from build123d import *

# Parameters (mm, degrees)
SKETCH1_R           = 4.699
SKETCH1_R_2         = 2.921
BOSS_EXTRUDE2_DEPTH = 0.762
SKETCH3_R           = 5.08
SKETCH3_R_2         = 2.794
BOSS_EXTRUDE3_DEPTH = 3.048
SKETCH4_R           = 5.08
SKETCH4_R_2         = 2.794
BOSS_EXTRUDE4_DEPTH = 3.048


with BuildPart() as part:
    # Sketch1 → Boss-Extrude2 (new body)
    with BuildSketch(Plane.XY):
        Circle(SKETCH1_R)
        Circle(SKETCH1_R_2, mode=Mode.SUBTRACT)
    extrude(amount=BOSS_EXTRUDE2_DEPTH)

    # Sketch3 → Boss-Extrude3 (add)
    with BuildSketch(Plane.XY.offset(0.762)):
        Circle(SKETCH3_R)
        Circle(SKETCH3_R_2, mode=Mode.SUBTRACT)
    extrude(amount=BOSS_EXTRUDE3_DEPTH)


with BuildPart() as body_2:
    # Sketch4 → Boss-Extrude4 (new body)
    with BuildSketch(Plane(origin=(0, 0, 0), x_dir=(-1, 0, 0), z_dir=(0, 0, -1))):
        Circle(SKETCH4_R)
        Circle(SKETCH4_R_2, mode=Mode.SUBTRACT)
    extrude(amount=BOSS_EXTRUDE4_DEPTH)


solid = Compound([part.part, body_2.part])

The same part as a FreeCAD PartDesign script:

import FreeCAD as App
import Part
import Sketcher

V = App.Vector
Q = App.Units.Quantity

doc = App.newDocument("Part")
params = doc.addObject("Spreadsheet::Sheet", "Params")
for row, (alias, value) in enumerate([
    ("sketch1_diameter", "0.37 in"),
    ("sketch1_diameter2", "0.23 in"),
    ("pad1_length", "0.03 in"),
    ("sketch2_diameter", "0.4 in"),
    ("sketch2_diameter2", "0.22 in"),
    ("pad2_length", "0.12 in"),
    ("sketch3_diameter", "0.4 in"),
    ("sketch3_diameter2", "0.22 in"),
    ("pad3_length", "0.12 in"),
], start=1):
    params.set(f"A{row}", alias)
    params.set(f"B{row}", "=" + value)
    params.setAlias(f"B{row}", alias)

body = doc.addObject("PartDesign::Body", "Body")

# Sketch on XY plane
sketch1 = body.newObject("Sketcher::SketchObject", "Sketch")
sketch1.AttachmentSupport = (doc.getObject("XY_Plane"), [""])
sketch1.MapMode = "FlatFace"
sketch1.addGeometry(Part.Circle(V(0, 0, 0), V(0, 0, 1), 4.7), False)
sketch1.addGeometry(Part.Circle(V(0, 0, 0), V(0, 0, 1), 2.9), False)
sketch1.addConstraint(Sketcher.Constraint("Coincident", 0, 3, -1, 1))
sketch1.addConstraint(Sketcher.Constraint("Coincident", 1, 3, -1, 1))
sketch1.addConstraint(Sketcher.Constraint("Diameter", 0, Q("0.37 in")))
sketch1.addConstraint(Sketcher.Constraint("Diameter", 1, Q("0.23 in")))
sketch1.setExpression("Constraints[2]", "Params.sketch1_diameter")
sketch1.setExpression("Constraints[3]", "Params.sketch1_diameter2")
pad1 = body.newObject("PartDesign::Pad", "Pad")
pad1.Profile = sketch1
pad1.setExpression("Length", "Params.pad1_length")

# Sketch on XY plane
sketch2 = body.newObject("Sketcher::SketchObject", "Sketch001")
sketch2.AttachmentSupport = (doc.getObject("XY_Plane"), [""])
sketch2.MapMode = "FlatFace"
sketch2.AttachmentOffset = App.Placement(V(0, 0, 0.03 * 25.4), App.Rotation())
sketch2.addGeometry(Part.Circle(V(0, 0, 0), V(0, 0, 1), 5.1), False)
sketch2.addGeometry(Part.Circle(V(0, 0, 0), V(0, 0, 1), 2.8), False)
sketch2.addConstraint(Sketcher.Constraint("Coincident", 0, 3, -1, 1))
sketch2.addConstraint(Sketcher.Constraint("Coincident", 1, 3, -1, 1))
sketch2.addConstraint(Sketcher.Constraint("Diameter", 0, Q("0.4 in")))
sketch2.addConstraint(Sketcher.Constraint("Diameter", 1, Q("0.22 in")))
sketch2.setExpression("Constraints[2]", "Params.sketch2_diameter")
sketch2.setExpression("Constraints[3]", "Params.sketch2_diameter2")
pad2 = body.newObject("PartDesign::Pad", "Pad001")
pad2.Profile = sketch2
pad2.setExpression("Length", "Params.pad2_length")
body2 = doc.addObject("PartDesign::Body", "Body001")

# Sketch on XY plane
sketch3 = body2.newObject("Sketcher::SketchObject", "Sketch002")
sketch3.AttachmentSupport = (doc.getObject("XY_Plane001"), [""])
sketch3.MapMode = "FlatFace"
sketch3.addGeometry(Part.Circle(V(0, 0, 0), V(0, 0, 1), 5.1), False)
sketch3.addGeometry(Part.Circle(V(0, 0, 0), V(0, 0, 1), 2.8), False)
sketch3.addConstraint(Sketcher.Constraint("Coincident", 0, 3, -1, 1))
sketch3.addConstraint(Sketcher.Constraint("Coincident", 1, 3, -1, 1))
sketch3.addConstraint(Sketcher.Constraint("Diameter", 0, Q("0.4 in")))
sketch3.addConstraint(Sketcher.Constraint("Diameter", 1, Q("0.22 in")))
sketch3.setExpression("Constraints[2]", "Params.sketch3_diameter")
sketch3.setExpression("Constraints[3]", "Params.sketch3_diameter2")
pad3 = body2.newObject("PartDesign::Pad", "Pad002")
pad3.Profile = sketch3
pad3.setExpression("Length", "Params.pad3_length")
pad3.Reversed = True

doc.recompute()
